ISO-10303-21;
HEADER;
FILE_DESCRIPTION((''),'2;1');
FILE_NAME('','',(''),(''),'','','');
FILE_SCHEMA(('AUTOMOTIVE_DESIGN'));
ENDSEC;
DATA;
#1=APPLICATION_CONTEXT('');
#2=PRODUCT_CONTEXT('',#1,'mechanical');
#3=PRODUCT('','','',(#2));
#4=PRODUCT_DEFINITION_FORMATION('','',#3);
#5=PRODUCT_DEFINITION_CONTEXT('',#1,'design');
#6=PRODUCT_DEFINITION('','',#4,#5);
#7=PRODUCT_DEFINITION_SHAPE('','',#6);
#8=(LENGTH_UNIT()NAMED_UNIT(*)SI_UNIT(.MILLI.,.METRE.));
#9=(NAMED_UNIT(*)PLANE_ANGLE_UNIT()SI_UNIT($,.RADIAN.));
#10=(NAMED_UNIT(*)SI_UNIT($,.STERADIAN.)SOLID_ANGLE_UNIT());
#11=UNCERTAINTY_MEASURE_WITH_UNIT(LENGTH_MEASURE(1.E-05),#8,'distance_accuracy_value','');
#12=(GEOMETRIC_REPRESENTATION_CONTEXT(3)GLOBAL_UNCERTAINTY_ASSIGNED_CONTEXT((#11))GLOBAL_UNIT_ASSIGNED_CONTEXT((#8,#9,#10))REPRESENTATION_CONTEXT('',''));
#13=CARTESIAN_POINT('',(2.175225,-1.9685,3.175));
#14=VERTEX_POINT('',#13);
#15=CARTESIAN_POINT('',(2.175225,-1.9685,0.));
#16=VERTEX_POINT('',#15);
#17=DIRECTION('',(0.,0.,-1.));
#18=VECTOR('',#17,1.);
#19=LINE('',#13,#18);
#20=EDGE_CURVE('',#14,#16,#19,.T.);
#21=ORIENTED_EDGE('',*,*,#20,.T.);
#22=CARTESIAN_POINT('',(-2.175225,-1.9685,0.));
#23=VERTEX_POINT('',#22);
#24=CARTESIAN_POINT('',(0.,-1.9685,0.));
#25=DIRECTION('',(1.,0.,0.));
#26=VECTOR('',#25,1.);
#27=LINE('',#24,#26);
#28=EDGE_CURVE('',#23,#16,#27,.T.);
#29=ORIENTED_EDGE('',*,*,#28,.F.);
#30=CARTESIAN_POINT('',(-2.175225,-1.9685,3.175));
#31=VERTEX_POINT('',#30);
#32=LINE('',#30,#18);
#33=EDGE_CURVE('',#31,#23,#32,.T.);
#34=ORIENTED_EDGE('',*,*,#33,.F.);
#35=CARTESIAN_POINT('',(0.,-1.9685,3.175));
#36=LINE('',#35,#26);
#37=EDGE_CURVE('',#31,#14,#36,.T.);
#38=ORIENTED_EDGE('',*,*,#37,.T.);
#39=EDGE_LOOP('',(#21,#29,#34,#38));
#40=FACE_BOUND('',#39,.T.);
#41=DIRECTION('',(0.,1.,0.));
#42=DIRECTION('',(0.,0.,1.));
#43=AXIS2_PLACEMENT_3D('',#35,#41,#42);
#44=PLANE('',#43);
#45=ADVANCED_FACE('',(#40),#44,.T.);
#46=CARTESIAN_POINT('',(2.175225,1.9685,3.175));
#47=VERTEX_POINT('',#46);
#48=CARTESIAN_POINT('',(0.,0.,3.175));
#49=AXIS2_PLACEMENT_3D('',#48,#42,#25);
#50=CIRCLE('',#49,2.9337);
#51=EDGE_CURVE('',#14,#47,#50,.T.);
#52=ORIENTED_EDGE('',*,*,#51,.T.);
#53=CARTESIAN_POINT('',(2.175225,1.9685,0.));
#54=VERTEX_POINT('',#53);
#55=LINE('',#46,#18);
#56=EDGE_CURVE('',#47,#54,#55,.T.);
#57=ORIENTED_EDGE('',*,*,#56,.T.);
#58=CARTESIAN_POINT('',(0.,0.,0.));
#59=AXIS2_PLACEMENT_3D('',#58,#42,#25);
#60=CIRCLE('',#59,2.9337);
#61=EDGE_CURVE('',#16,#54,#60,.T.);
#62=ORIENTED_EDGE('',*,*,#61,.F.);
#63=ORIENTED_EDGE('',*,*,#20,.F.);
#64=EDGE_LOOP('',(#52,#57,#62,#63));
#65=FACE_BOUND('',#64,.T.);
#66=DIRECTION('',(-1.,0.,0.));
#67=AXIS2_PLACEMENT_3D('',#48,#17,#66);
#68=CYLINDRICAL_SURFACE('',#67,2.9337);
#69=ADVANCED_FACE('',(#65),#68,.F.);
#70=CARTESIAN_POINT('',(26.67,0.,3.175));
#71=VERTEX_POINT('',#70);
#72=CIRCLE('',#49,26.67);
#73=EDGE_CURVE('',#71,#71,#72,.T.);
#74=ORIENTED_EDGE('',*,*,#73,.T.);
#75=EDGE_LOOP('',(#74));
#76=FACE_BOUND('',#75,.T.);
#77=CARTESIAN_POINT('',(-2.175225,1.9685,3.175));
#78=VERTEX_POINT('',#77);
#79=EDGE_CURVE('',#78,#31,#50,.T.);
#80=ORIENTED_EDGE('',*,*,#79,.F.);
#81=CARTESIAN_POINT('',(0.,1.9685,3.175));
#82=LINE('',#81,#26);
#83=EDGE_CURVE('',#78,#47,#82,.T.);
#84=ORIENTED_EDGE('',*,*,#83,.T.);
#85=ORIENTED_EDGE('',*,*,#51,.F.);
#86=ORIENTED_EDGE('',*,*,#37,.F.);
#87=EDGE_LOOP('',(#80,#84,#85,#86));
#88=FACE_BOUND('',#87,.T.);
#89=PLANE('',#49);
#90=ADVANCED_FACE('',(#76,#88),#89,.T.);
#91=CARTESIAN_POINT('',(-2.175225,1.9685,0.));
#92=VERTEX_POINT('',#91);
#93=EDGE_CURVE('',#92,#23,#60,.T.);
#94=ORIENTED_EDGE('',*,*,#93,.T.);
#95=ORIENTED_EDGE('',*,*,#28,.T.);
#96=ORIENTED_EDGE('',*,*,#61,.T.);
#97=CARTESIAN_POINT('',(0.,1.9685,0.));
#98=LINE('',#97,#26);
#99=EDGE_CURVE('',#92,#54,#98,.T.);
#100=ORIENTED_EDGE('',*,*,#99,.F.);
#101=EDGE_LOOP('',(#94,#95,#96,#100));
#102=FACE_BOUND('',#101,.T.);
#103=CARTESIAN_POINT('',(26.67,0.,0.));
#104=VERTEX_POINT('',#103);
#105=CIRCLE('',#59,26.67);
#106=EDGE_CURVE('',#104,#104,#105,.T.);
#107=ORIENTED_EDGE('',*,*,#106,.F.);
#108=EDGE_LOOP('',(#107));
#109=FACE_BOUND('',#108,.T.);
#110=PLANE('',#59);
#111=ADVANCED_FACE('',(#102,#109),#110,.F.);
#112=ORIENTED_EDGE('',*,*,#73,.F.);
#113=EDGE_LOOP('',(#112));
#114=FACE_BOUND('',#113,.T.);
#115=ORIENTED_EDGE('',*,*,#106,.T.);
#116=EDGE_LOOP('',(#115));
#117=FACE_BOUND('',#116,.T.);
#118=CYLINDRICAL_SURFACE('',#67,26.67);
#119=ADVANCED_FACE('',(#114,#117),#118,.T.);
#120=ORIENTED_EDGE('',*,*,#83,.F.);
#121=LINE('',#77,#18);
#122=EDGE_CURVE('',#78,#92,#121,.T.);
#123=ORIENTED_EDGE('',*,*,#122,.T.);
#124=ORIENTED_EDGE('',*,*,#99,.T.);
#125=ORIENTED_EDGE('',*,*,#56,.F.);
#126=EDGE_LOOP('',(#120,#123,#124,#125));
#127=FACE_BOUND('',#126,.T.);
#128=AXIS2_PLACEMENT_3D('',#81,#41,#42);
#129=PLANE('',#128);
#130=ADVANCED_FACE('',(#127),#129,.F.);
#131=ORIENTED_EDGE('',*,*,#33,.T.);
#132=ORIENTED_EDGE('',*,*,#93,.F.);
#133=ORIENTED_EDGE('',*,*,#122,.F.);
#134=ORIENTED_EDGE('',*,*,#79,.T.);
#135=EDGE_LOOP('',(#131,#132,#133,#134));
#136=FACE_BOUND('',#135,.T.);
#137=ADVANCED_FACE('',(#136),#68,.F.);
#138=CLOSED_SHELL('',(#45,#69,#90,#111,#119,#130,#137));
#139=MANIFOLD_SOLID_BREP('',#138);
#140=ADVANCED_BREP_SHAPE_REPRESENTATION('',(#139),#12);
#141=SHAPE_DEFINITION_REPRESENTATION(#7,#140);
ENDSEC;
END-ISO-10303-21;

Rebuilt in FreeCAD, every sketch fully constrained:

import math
import FreeCAD as App
import Part
import Sketcher
from FreeCAD import Vector
Q = App.Units.Quantity

doc = App.newDocument("Part")
body = doc.addObject("PartDesign::Body", "Body")

sketch1 = body.newObject("Sketcher::SketchObject", "Sketch")
sketch1.AttachmentSupport = (doc.getObject("XY_Plane"), [""])
sketch1.MapMode = "FlatFace"
sketch1.addGeometry(Part.Circle(Vector(0, 0, 0), Vector(0, 0, 1), 26.7), False)
sketch1.addGeometry(Part.ArcOfCircle(Part.Circle(Vector(0, 0, 0), Vector(0, 0, 1), 2.9), math.radians(138), math.radians(222)), False)
sketch1.addGeometry(Part.LineSegment(Vector(-2.2, 2, 0), Vector(2.2, 2, 0)), False)
sketch1.addGeometry(Part.ArcOfCircle(Part.Circle(Vector(0, 0, 0), Vector(0, 0, 1), 2.9), math.radians(-42), math.radians(42)), False)
sketch1.addGeometry(Part.LineSegment(Vector(2.2, -2, 0), Vector(-2.2, -2, 0)), False)
sketch1.addConstraint(Sketcher.Constraint("Coincident", 1, 1, 2, 1))
sketch1.addConstraint(Sketcher.Constraint("Coincident", 2, 2, 3, 2))
sketch1.addConstraint(Sketcher.Constraint("Coincident", 3, 1, 4, 1))
sketch1.addConstraint(Sketcher.Constraint("Coincident", 4, 2, 1, 2))
sketch1.addConstraint(Sketcher.Constraint("Horizontal", 2))
sketch1.addConstraint(Sketcher.Constraint("Horizontal", 4))
sketch1.addConstraint(Sketcher.Constraint("Coincident", 0, 3, -1, 1))
sketch1.addConstraint(Sketcher.Constraint("Coincident", 1, 3, -1, 1))
sketch1.addConstraint(Sketcher.Constraint("Coincident", 3, 3, -1, 1))
sketch1.addConstraint(Sketcher.Constraint("Equal", 1, 3))
sketch1.addConstraint(Sketcher.Constraint("Vertical", 2, 2, 3, 1))
sketch1.addConstraint(Sketcher.Constraint("Diameter", 0, Q("2.1 in")))
sketch1.addConstraint(Sketcher.Constraint("Radius", 1, Q("0.1155 in")))
sketch1.addConstraint(Sketcher.Constraint("DistanceY", 3, 1, 2, 2, Q("0.155 in")))
pad1 = body.newObject("PartDesign::Pad", "Pad")
pad1.Profile = sketch1
pad1.Length = Q("0.125 in")

doc.recompute()
